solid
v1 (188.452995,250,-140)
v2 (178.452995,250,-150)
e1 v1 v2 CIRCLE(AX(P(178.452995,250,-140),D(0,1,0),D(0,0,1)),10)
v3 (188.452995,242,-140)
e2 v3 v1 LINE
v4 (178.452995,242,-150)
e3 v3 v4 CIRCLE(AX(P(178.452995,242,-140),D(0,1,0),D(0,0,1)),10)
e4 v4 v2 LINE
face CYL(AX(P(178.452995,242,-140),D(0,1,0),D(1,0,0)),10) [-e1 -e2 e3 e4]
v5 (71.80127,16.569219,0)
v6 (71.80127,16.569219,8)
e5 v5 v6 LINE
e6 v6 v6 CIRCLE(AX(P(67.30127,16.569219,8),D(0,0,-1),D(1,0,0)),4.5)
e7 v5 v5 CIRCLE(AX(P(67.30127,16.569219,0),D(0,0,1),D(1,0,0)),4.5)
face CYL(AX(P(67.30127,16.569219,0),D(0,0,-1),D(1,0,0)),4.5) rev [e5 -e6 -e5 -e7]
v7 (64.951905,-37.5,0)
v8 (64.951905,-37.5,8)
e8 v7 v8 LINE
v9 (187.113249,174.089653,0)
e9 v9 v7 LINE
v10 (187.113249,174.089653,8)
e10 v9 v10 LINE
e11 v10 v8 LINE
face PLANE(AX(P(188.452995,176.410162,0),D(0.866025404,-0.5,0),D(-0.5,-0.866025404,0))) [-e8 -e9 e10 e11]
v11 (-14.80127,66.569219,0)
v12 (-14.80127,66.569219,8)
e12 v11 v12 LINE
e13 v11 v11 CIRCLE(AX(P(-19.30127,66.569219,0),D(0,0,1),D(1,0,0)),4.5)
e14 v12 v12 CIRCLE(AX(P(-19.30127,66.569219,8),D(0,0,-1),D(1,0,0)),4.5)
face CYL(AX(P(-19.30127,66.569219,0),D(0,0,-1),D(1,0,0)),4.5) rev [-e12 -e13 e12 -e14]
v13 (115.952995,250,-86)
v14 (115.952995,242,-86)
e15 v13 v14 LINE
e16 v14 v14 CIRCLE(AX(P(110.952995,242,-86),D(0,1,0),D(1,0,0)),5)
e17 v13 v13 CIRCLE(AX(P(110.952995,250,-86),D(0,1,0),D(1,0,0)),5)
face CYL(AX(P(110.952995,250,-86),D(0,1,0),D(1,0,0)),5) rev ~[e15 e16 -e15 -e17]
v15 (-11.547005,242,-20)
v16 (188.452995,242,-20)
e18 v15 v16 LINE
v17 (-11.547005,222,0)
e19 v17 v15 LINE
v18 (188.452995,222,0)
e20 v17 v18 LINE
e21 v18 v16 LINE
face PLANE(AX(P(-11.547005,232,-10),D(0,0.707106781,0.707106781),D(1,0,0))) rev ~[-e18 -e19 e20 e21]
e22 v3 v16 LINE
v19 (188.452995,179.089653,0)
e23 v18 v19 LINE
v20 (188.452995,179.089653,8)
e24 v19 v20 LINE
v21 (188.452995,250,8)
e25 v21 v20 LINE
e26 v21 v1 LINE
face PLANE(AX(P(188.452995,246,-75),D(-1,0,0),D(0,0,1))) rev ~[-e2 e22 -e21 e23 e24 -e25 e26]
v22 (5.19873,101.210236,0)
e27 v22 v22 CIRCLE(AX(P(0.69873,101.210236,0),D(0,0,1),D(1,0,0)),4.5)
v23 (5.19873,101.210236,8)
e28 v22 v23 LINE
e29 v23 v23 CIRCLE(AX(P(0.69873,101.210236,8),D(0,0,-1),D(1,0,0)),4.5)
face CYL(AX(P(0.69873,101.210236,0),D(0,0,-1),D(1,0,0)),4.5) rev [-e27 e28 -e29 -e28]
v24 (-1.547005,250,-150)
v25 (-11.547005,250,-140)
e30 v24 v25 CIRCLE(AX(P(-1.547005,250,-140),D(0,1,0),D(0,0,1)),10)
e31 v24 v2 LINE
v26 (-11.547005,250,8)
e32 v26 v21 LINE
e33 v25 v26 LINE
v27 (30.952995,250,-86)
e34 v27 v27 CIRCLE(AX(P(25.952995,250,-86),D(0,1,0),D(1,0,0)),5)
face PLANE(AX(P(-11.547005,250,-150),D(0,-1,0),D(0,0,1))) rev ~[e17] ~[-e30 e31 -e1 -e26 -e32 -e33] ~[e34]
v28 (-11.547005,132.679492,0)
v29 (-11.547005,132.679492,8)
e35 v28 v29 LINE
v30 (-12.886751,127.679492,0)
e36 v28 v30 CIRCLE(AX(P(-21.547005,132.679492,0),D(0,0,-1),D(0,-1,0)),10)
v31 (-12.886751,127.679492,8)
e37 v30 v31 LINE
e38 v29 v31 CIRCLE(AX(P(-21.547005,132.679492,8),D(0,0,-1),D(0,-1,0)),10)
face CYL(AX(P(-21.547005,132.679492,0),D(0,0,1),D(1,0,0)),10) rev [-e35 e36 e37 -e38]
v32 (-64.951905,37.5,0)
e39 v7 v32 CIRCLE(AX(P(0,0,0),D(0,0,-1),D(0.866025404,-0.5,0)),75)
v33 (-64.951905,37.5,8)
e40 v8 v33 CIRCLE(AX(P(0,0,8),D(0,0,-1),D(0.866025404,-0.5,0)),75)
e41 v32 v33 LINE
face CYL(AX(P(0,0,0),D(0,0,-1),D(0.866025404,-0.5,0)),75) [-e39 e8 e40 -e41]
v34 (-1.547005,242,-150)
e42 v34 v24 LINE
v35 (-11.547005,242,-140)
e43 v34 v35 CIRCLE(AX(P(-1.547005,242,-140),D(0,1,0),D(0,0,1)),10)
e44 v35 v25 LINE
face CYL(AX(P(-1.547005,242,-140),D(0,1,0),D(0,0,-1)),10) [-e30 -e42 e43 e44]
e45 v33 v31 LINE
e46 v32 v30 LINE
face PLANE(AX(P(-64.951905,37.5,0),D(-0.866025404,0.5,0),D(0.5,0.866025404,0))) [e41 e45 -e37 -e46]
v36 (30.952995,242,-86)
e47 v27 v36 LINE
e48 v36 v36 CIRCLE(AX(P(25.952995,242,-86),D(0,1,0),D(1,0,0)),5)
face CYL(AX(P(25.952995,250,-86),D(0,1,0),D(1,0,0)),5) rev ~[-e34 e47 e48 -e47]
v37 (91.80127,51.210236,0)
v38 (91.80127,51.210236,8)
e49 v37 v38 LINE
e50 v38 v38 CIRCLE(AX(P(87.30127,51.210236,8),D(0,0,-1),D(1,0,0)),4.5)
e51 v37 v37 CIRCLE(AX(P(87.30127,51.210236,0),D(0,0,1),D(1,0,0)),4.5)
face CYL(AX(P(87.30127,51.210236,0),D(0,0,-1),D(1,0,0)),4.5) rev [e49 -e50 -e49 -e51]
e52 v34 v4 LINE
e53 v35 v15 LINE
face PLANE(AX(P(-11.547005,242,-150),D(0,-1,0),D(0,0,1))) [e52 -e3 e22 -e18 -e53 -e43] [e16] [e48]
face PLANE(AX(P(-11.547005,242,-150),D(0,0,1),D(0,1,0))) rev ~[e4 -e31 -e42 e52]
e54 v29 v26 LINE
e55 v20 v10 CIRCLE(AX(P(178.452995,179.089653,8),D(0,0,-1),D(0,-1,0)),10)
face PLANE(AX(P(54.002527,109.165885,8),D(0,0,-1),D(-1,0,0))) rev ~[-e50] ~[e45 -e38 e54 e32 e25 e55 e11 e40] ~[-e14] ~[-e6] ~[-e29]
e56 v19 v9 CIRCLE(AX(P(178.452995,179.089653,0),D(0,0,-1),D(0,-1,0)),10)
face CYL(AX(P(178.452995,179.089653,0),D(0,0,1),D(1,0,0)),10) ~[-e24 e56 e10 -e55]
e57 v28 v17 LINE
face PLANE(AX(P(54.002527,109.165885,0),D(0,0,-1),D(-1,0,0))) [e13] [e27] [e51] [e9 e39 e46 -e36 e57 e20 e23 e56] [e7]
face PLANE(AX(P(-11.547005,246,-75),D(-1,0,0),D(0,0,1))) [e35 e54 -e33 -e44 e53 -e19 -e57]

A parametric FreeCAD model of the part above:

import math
import FreeCAD as App
import Part
import Sketcher
from FreeCAD import Vector
Q = App.Units.Quantity


def edges_at(feature, points):
    """Names of the edges that pass closest to the given points."""
    edges = feature.Shape.Edges
    near = lambda p: min(range(len(edges)), key=lambda i: edges[i].distToShape(Part.Vertex(*p))[0])
    return sorted({f"Edge{near(p) + 1}" for p in points})

doc = App.newDocument("Part")
body = doc.addObject("PartDesign::Body", "Body")

sketch1 = body.newObject("Sketcher::SketchObject", "Sketch")
sketch1.AttachmentSupport = (doc.getObject("XY_Plane"), [""])
sketch1.MapMode = "FlatFace"
sketch1.addGeometry(Part.LineSegment(Vector(-11.547005, 130, 0), Vector(-64.951905, 37.5, 0)), False)
sketch1.addGeometry(Part.ArcOfCircle(Part.Circle(Vector(0, 0, 0), Vector(0, 0, 1), 75), math.radians(150), math.radians(330)), False)
sketch1.addGeometry(Part.LineSegment(Vector(64.951905, -37.5, 0), Vector(188.452995, 176.410162, 0)), False)
sketch1.addGeometry(Part.LineSegment(Vector(188.452995, 176.410162, 0), Vector(188.452995, 250, 0)), False)
sketch1.addGeometry(Part.LineSegment(Vector(188.452995, 250, 0), Vector(-11.547005, 250, 0)), False)
sketch1.addGeometry(Part.LineSegment(Vector(-11.547005, 250, 0), Vector(-11.547005, 130, 0)), False)
sketch1.addConstraint(Sketcher.Constraint("Tangent", 0, 2, 1, 1))
sketch1.addConstraint(Sketcher.Constraint("Tangent", 1, 2, 2, 1))
sketch1.addConstraint(Sketcher.Constraint("Coincident", 2, 2, 3, 1))
sketch1.addConstraint(Sketcher.Constraint("Coincident", 3, 2, 4, 1))
sketch1.addConstraint(Sketcher.Constraint("Coincident", 4, 2, 5, 1))
sketch1.addConstraint(Sketcher.Constraint("Coincident", 5, 2, 0, 1))
sketch1.addConstraint(Sketcher.Constraint("Vertical", 3))
sketch1.addConstraint(Sketcher.Constraint("Horizontal", 4))
sketch1.addConstraint(Sketcher.Constraint("Vertical", 5))
sketch1.addConstraint(Sketcher.Constraint("Coincident", 1, 3, -1, 1))
sketch1.addConstraint(Sketcher.Constraint("Parallel", 0, 2))
sketch1.addConstraint(Sketcher.Constraint("Radius", 1, 75.0))
sketch1.addConstraint(Sketcher.Constraint("DistanceX", 4, 2, 4, 1, 200.0))
sketch1.addConstraint(Sketcher.Constraint("DistanceY", 5, 2, 5, 1, 120.0))
sketch1.addConstraint(Sketcher.Constraint("Angle", 0, Q("-120 deg")))
sketch1.addConstraint(Sketcher.Constraint("DistanceY", -1, 1, 3, 2, 250.0))
pad1 = body.newObject("PartDesign::Pad", "Pad")
pad1.Profile = sketch1
pad1.Length = 8

sketch2 = body.newObject("Sketcher::SketchObject", "Sketch001")
sketch2.AttachmentSupport = (doc.getObject("YZ_Plane"), [""])
sketch2.MapMode = "FlatFace"
sketch2.AttachmentOffset = App.Placement(Vector(0, 0, -11.547005), App.Rotation())
sketch2.addGeometry(Part.LineSegment(Vector(250, -150, 0), Vector(242, -150, 0)), False)
sketch2.addGeometry(Part.LineSegment(Vector(242, -150, 0), Vector(242, 0, 0)), False)
sketch2.addGeometry(Part.LineSegment(Vector(242, 0, 0), Vector(250, 0, 0)), False)
sketch2.addGeometry(Part.LineSegment(Vector(250, 0, 0), Vector(250, -150, 0)), False)
sketch2.addConstraint(Sketcher.Constraint("Coincident", 0, 2, 1, 1))
sketch2.addConstraint(Sketcher.Constraint("Coincident", 1, 2, 2, 1))
sketch2.addConstraint(Sketcher.Constraint("Coincident", 2, 2, 3, 1))
sketch2.addConstraint(Sketcher.Constraint("Coincident", 3, 2, 0, 1))
sketch2.addConstraint(Sketcher.Constraint("Horizontal", 0))
sketch2.addConstraint(Sketcher.Constraint("Vertical", 1))
sketch2.addConstraint(Sketcher.Constraint("Horizontal", 2))
sketch2.addConstraint(Sketcher.Constraint("Vertical", 3))
sketch2.addConstraint(Sketcher.Constraint("PointOnObject", 1, 2, -1))
sketch2.addConstraint(Sketcher.Constraint("DistanceX", 0, 2, 0, 1, 8.0))
sketch2.addConstraint(Sketcher.Constraint("DistanceY", 1, 1, 1, 2, 150.0))
sketch2.addConstraint(Sketcher.Constraint("DistanceX", -1, 1, 0, 2, 242.0))
pad2 = body.newObject("PartDesign::Pad", "Pad001")
pad2.Profile = sketch2
pad2.Length = 200
doc.recompute()

chamfer = body.newObject("PartDesign::Chamfer", "Chamfer")
chamfer.Base = (pad2, edges_at(pad2, [(88.453, 242, 0)]))
chamfer.Size = 20

sketch3 = body.newObject("Sketcher::SketchObject", "Sketch002")
sketch3.AttachmentSupport = (doc.getObject("XZ_Plane"), [""])
sketch3.MapMode = "FlatFace"
sketch3.AttachmentOffset = App.Placement(Vector(0, 0, -250), App.Rotation())
sketch3.addGeometry(Part.Circle(Vector(110.952995, -86, 0), Vector(0, 0, 1), 5), False)
sketch3.addConstraint(Sketcher.Constraint("Diameter", 0, 10.0))
sketch3.addConstraint(Sketcher.Constraint("DistanceY", 0, 3, -1, 1, 86.0))
sketch3.addConstraint(Sketcher.Constraint("DistanceX", -1, 1, 0, 3, 110.952995))
pocket1 = body.newObject("PartDesign::Pocket", "Pocket")
pocket1.Profile = sketch3
pocket1.Type = "UpToFirst"
pocket1.Reversed = True

sketch4 = body.newObject("Sketcher::SketchObject", "Sketch003")
sketch4.AttachmentSupport = (doc.getObject("XZ_Plane"), [""])
sketch4.MapMode = "FlatFace"
sketch4.AttachmentOffset = App.Placement(Vector(0, 0, -250), App.Rotation())
sketch4.addGeometry(Part.Circle(Vector(25.952995, -86, 0), Vector(0, 0, 1), 5), False)
sketch4.addConstraint(Sketcher.Constraint("Diameter", 0, 10.0))
sketch4.addConstraint(Sketcher.Constraint("DistanceY", 0, 3, -1, 1, 86.0))
sketch4.addConstraint(Sketcher.Constraint("DistanceX", -1, 1, 0, 3, 25.952995))
pocket2 = body.newObject("PartDesign::Pocket", "Pocket001")
pocket2.Profile = sketch4
pocket2.Type = "UpToFirst"
pocket2.Reversed = True

sketch5 = body.newObject("Sketcher::SketchObject", "Sketch004")
sketch5.AttachmentSupport = (doc.getObject("XY_Plane"), [""])
sketch5.MapMode = "FlatFace"
sketch5.addGeometry(Part.Circle(Vector(87.30127, 51.210236, 0), Vector(0, 0, 1), 4.5), False)
sketch5.addConstraint(Sketcher.Constraint("Diameter", 0, 9.0))
sketch5.addConstraint(Sketcher.Constraint("DistanceX", -1, 1, 0, 3, 87.30127))
sketch5.addConstraint(Sketcher.Constraint("DistanceY", -1, 1, 0, 3, 51.210236))
pocket3 = body.newObject("PartDesign::Pocket", "Pocket002")
pocket3.Profile = sketch5
pocket3.Type = "UpToFirst"
pocket3.Reversed = True

sketch6 = body.newObject("Sketcher::SketchObject", "Sketch005")
sketch6.AttachmentSupport = (doc.getObject("XY_Plane"), [""])
sketch6.MapMode = "FlatFace"
sketch6.addGeometry(Part.Circle(Vector(67.30127, 16.569219, 0), Vector(0, 0, 1), 4.5), False)
sketch6.addConstraint(Sketcher.Constraint("Diameter", 0, 9.0))
sketch6.addConstraint(Sketcher.Constraint("DistanceX", -1, 1, 0, 3, 67.30127))
sketch6.addConstraint(Sketcher.Constraint("DistanceY", -1, 1, 0, 3, 16.569219))
pocket4 = body.newObject("PartDesign::Pocket", "Pocket003")
pocket4.Profile = sketch6
pocket4.Type = "UpToFirst"
pocket4.Reversed = True

sketch7 = body.newObject("Sketcher::SketchObject", "Sketch006")
sketch7.AttachmentSupport = (doc.getObject("XY_Plane"), [""])
sketch7.MapMode = "FlatFace"
sketch7.addGeometry(Part.Circle(Vector(-19.30127, 66.569219, 0), Vector(0, 0, 1), 4.5), False)
sketch7.addConstraint(Sketcher.Constraint("Diameter", 0, 9.0))
sketch7.addConstraint(Sketcher.Constraint("DistanceX", 0, 3, -1, 1, 19.30127))
sketch7.addConstraint(Sketcher.Constraint("DistanceY", -1, 1, 0, 3, 66.569219))
pocket5 = body.newObject("PartDesign::Pocket", "Pocket004")
pocket5.Profile = sketch7
pocket5.Type = "UpToFirst"
pocket5.Reversed = True

sketch8 = body.newObject("Sketcher::SketchObject", "Sketch007")
sketch8.AttachmentSupport = (doc.getObject("XY_Plane"), [""])
sketch8.MapMode = "FlatFace"
sketch8.addGeometry(Part.Circle(Vector(0.69873, 101.210236, 0), Vector(0, 0, 1), 4.5), False)
sketch8.addConstraint(Sketcher.Constraint("Diameter", 0, 9.0))
sketch8.addConstraint(Sketcher.Constraint("DistanceX", -1, 1, 0, 3, 0.69873))
sketch8.addConstraint(Sketcher.Constraint("DistanceY", -1, 1, 0, 3, 101.210236))
pocket6 = body.newObject("PartDesign::Pocket", "Pocket005")
pocket6.Profile = sketch8
pocket6.Type = "UpToFirst"
pocket6.Reversed = True
doc.recompute()

fillet = body.newObject("PartDesign::Fillet", "Fillet")
fillet.Base = (pocket6, edges_at(pocket6, [
    (-11.547, 130, 4),
    (188.453, 176.41, 4),
    (-11.547, 246, -150),
    (188.453, 246, -150),
]))
fillet.Radius = 10

doc.recompute()
